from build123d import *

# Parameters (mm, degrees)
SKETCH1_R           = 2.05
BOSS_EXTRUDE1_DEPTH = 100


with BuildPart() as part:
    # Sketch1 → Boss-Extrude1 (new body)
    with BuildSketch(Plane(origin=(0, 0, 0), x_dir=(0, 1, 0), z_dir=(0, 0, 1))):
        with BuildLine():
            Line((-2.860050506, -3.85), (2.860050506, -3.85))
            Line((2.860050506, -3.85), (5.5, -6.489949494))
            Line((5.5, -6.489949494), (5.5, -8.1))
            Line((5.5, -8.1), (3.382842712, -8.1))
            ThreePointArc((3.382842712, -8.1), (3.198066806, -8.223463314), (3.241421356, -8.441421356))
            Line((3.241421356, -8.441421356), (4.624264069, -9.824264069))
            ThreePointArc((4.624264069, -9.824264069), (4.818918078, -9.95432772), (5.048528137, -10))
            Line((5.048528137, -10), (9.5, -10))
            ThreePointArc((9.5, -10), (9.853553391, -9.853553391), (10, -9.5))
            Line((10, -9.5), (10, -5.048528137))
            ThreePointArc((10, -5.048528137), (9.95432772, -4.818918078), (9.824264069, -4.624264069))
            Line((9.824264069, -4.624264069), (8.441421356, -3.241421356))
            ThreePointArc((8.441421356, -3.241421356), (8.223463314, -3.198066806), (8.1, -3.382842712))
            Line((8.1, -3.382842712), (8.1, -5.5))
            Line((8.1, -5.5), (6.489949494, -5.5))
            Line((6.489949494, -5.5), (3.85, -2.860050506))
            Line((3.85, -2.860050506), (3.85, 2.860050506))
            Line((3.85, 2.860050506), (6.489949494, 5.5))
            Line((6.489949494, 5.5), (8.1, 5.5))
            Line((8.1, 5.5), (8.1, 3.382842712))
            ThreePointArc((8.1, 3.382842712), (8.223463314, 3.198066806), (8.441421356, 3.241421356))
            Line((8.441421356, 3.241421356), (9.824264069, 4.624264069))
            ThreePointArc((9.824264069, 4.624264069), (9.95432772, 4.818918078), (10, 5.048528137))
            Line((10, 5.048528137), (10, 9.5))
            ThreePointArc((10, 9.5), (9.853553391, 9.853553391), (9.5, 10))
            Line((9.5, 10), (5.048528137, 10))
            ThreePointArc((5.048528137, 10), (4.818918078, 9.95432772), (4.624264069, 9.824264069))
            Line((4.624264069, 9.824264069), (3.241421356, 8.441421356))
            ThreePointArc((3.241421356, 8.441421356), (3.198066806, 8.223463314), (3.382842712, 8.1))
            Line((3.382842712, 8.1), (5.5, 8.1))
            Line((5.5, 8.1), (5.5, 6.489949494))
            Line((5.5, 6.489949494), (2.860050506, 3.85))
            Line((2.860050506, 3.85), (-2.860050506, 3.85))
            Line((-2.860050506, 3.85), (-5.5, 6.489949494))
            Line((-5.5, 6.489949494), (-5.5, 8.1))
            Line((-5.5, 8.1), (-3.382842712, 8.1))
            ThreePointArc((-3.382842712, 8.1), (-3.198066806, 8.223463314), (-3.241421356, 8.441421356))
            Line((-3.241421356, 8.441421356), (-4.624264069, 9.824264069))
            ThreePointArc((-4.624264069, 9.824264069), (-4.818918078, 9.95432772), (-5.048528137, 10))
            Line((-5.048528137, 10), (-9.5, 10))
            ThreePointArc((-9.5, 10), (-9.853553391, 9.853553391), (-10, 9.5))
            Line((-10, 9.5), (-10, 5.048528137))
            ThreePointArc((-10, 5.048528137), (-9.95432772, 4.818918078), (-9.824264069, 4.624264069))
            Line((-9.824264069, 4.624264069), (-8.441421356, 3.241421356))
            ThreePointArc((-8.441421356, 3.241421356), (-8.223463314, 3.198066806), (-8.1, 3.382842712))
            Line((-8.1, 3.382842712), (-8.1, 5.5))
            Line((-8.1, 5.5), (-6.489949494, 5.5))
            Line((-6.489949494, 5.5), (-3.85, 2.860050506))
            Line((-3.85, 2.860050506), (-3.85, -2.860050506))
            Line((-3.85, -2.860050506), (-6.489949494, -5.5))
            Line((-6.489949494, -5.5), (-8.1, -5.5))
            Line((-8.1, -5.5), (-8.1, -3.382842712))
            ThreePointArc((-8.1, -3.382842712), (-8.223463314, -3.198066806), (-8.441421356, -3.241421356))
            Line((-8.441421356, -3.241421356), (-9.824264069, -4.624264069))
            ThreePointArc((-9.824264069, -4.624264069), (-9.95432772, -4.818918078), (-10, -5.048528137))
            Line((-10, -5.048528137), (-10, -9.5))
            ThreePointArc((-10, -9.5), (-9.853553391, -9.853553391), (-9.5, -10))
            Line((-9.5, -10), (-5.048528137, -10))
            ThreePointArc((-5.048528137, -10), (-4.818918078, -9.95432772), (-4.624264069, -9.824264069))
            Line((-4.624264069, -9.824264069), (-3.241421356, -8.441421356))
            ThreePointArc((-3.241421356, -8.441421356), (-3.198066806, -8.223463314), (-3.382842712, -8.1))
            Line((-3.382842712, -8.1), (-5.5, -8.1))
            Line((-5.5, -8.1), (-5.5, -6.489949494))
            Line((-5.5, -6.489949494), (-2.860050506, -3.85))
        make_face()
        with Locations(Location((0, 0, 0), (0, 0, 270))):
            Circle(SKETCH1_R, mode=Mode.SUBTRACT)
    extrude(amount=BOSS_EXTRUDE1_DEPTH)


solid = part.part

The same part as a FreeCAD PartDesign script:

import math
import FreeCAD as App
import Part
import Sketcher

V = App.Vector

doc = App.newDocument("Part")
body = doc.addObject("PartDesign::Body", "Body")

sketch1 = body.newObject("Sketcher::SketchObject", "Sketch")
sketch1.AttachmentSupport = (doc.getObject("XY_Plane"), [""])
sketch1.MapMode = "FlatFace"
sketch1.addGeometry([
    Part.LineSegment(V(3.85, -2.86, 0), V(3.85, 2.86, 0)),
    Part.LineSegment(V(3.85, 2.86, 0), V(6.49, 5.5, 0)),
    Part.LineSegment(V(6.49, 5.5, 0), V(8.1, 5.5, 0)),
    Part.LineSegment(V(8.1, 5.5, 0), V(8.1, 3.38, 0)),
    Part.ArcOfCircle(Part.Circle(V(8.3, 3.38, 0), V(0, 0, 1), 0.2), math.radians(-180), math.radians(-45)),
    Part.LineSegment(V(8.44, 3.24, 0), V(9.82, 4.62, 0)),
    Part.ArcOfCircle(Part.Circle(V(9.4, 5.05, 0), V(0, 0, 1), 0.6), math.radians(-45), math.radians(0)),
    Part.LineSegment(V(10, 5.05, 0), V(10, 9.5, 0)),
    Part.ArcOfCircle(Part.Circle(V(9.5, 9.5, 0), V(0, 0, 1), 0.5), math.radians(0), math.radians(90)),
    Part.LineSegment(V(9.5, 10, 0), V(5.05, 10, 0)),
    Part.ArcOfCircle(Part.Circle(V(5.05, 9.4, 0), V(0, 0, 1), 0.6), math.radians(90), math.radians(135)),
    Part.LineSegment(V(4.62, 9.82, 0), V(3.24, 8.44, 0)),
    Part.ArcOfCircle(Part.Circle(V(3.38, 8.3, 0), V(0, 0, 1), 0.2), math.radians(135), math.radians(270)),
    Part.LineSegment(V(3.38, 8.1, 0), V(5.5, 8.1, 0)),
    Part.LineSegment(V(5.5, 8.1, 0), V(5.5, 6.49, 0)),
    Part.LineSegment(V(5.5, 6.49, 0), V(2.86, 3.85, 0)),
    Part.LineSegment(V(2.86, 3.85, 0), V(-2.86, 3.85, 0)),
    Part.LineSegment(V(-2.86, 3.85, 0), V(-5.5, 6.49, 0)),
    Part.LineSegment(V(-5.5, 6.49, 0), V(-5.5, 8.1, 0)),
    Part.LineSegment(V(-5.5, 8.1, 0), V(-3.38, 8.1, 0)),
    Part.ArcOfCircle(Part.Circle(V(-3.38, 8.3, 0), V(0, 0, 1), 0.2), math.radians(-90), math.radians(45)),
    Part.LineSegment(V(-3.24, 8.44, 0), V(-4.62, 9.82, 0)),
    Part.ArcOfCircle(Part.Circle(V(-5.05, 9.4, 0), V(0, 0, 1), 0.6), math.radians(45), math.radians(90)),
    Part.LineSegment(V(-5.05, 10, 0), V(-9.5, 10, 0)),
    Part.ArcOfCircle(Part.Circle(V(-9.5, 9.5, 0), V(0, 0, 1), 0.5), math.radians(90), math.radians(180)),
    Part.LineSegment(V(-10, 9.5, 0), V(-10, 5.05, 0)),
    Part.ArcOfCircle(Part.Circle(V(-9.4, 5.05, 0), V(0, 0, 1), 0.6), math.radians(180), math.radians(225)),
    Part.LineSegment(V(-9.82, 4.62, 0), V(-8.44, 3.24, 0)),
    Part.ArcOfCircle(Part.Circle(V(-8.3, 3.38, 0), V(0, 0, 1), 0.2), math.radians(-135), math.radians(0)),
    Part.LineSegment(V(-8.1, 3.38, 0), V(-8.1, 5.5, 0)),
    Part.LineSegment(V(-8.1, 5.5, 0), V(-6.49, 5.5, 0)),
    Part.LineSegment(V(-6.49, 5.5, 0), V(-3.85, 2.86, 0)),
    Part.LineSegment(V(-3.85, 2.86, 0), V(-3.85, -2.86, 0)),
    Part.LineSegment(V(-3.85, -2.86, 0), V(-6.49, -5.5, 0)),
    Part.LineSegment(V(-6.49, -5.5, 0), V(-8.1, -5.5, 0)),
    Part.LineSegment(V(-8.1, -5.5, 0), V(-8.1, -3.38, 0)),
    Part.ArcOfCircle(Part.Circle(V(-8.3, -3.38, 0), V(0, 0, 1), 0.2), math.radians(0), math.radians(135)),
    Part.LineSegment(V(-8.44, -3.24, 0), V(-9.82, -4.62, 0)),
    Part.ArcOfCircle(Part.Circle(V(-9.4, -5.05, 0), V(0, 0, 1), 0.6), math.radians(135), math.radians(180)),
    Part.LineSegment(V(-10, -5.05, 0), V(-10, -9.5, 0)),
    Part.ArcOfCircle(Part.Circle(V(-9.5, -9.5, 0), V(0, 0, 1), 0.5), math.radians(180), math.radians(270)),
    Part.LineSegment(V(-9.5, -10, 0), V(-5.05, -10, 0)),
    Part.ArcOfCircle(Part.Circle(V(-5.05, -9.4, 0), V(0, 0, 1), 0.6), math.radians(-90), math.radians(-45)),
    Part.LineSegment(V(-4.62, -9.82, 0), V(-3.24, -8.44, 0)),
    Part.ArcOfCircle(Part.Circle(V(-3.38, -8.3, 0), V(0, 0, 1), 0.2), math.radians(-45), math.radians(90)),
    Part.LineSegment(V(-3.38, -8.1, 0), V(-5.5, -8.1, 0)),
    Part.LineSegment(V(-5.5, -8.1, 0), V(-5.5, -6.49, 0)),
    Part.LineSegment(V(-5.5, -6.49, 0), V(-2.86, -3.85, 0)),
    Part.LineSegment(V(-2.86, -3.85, 0), V(2.86, -3.85, 0)),
    Part.LineSegment(V(2.86, -3.85, 0), V(5.5, -6.49, 0)),
    Part.LineSegment(V(5.5, -6.49, 0), V(5.5, -8.1, 0)),
    Part.LineSegment(V(5.5, -8.1, 0), V(3.38, -8.1, 0)),
    Part.ArcOfCircle(Part.Circle(V(3.38, -8.3, 0), V(0, 0, 1), 0.2), math.radians(90), math.radians(225)),
    Part.LineSegment(V(3.24, -8.44, 0), V(4.62, -9.82, 0)),
    Part.ArcOfCircle(Part.Circle(V(5.05, -9.4, 0), V(0, 0, 1), 0.6), math.radians(-135), math.radians(-90)),
    Part.LineSegment(V(5.05, -10, 0), V(9.5, -10, 0)),
    Part.ArcOfCircle(Part.Circle(V(9.5, -9.5, 0), V(0, 0, 1), 0.5), math.radians(-90), math.radians(0)),
    Part.LineSegment(V(10, -9.5, 0), V(10, -5.05, 0)),
    Part.ArcOfCircle(Part.Circle(V(9.4, -5.05, 0), V(0, 0, 1), 0.6), math.radians(0), math.radians(45)),
    Part.LineSegment(V(9.82, -4.62, 0), V(8.44, -3.24, 0)),
    Part.ArcOfCircle(Part.Circle(V(8.3, -3.38, 0), V(0, 0, 1), 0.2), math.radians(45), math.radians(180)),
    Part.LineSegment(V(8.1, -3.38, 0), V(8.1, -5.5, 0)),
    Part.LineSegment(V(8.1, -5.5, 0), V(6.49, -5.5, 0)),
    Part.LineSegment(V(6.49, -5.5, 0), V(3.85, -2.86, 0)),
    Part.Circle(V(0, 0, 0), V(0, 0, 1), 2.05),
], False)
sketch1.addConstraint([
    Sketcher.Constraint("Coincident", 0, 2, 1, 1),
    Sketcher.Constraint("Coincident", 1, 2, 2, 1),
    Sketcher.Constraint("Coincident", 2, 2, 3, 1),
    Sketcher.Constraint("Tangent", 3, 2, 4, 1),
    Sketcher.Constraint("Tangent", 4, 2, 5, 1),
    Sketcher.Constraint("Tangent", 5, 2, 6, 1),
    Sketcher.Constraint("Tangent", 6, 2, 7, 1),
    Sketcher.Constraint("Tangent", 7, 2, 8, 1),
    Sketcher.Constraint("Tangent", 8, 2, 9, 1),
    Sketcher.Constraint("Tangent", 9, 2, 10, 1),
    Sketcher.Constraint("Tangent", 10, 2, 11, 1),
    Sketcher.Constraint("Tangent", 11, 2, 12, 1),
    Sketcher.Constraint("Tangent", 12, 2, 13, 1),
    Sketcher.Constraint("Coincident", 13, 2, 14, 1),
    Sketcher.Constraint("Coincident", 14, 2, 15, 1),
    Sketcher.Constraint("Coincident", 15, 2, 16, 1),
    Sketcher.Constraint("Coincident", 16, 2, 17, 1),
    Sketcher.Constraint("Coincident", 17, 2, 18, 1),
    Sketcher.Constraint("Coincident", 18, 2, 19, 1),
    Sketcher.Constraint("Tangent", 19, 2, 20, 1),
    Sketcher.Constraint("Tangent", 20, 2, 21, 1),
    Sketcher.Constraint("Tangent", 21, 2, 22, 1),
    Sketcher.Constraint("Tangent", 22, 2, 23, 1),
    Sketcher.Constraint("Tangent", 23, 2, 24, 1),
    Sketcher.Constraint("Tangent", 24, 2, 25, 1),
    Sketcher.Constraint("Tangent", 25, 2, 26, 1),
    Sketcher.Constraint("Tangent", 26, 2, 27, 1),
    Sketcher.Constraint("Tangent", 27, 2, 28, 1),
    Sketcher.Constraint("Tangent", 28, 2, 29, 1),
    Sketcher.Constraint("Coincident", 29, 2, 30, 1),
    Sketcher.Constraint("Coincident", 30, 2, 31, 1),
    Sketcher.Constraint("Coincident", 31, 2, 32, 1),
    Sketcher.Constraint("Coincident", 32, 2, 33, 1),
    Sketcher.Constraint("Coincident", 33, 2, 34, 1),
    Sketcher.Constraint("Coincident", 34, 2, 35, 1),
    Sketcher.Constraint("Tangent", 35, 2, 36, 1),
    Sketcher.Constraint("Tangent", 36, 2, 37, 1),
    Sketcher.Constraint("Tangent", 37, 2, 38, 1),
    Sketcher.Constraint("Tangent", 38, 2, 39, 1),
    Sketcher.Constraint("Tangent", 39, 2, 40, 1),
    Sketcher.Constraint("Tangent", 40, 2, 41, 1),
    Sketcher.Constraint("Tangent", 41, 2, 42, 1),
    Sketcher.Constraint("Tangent", 42, 2, 43, 1),
    Sketcher.Constraint("Tangent", 43, 2, 44, 1),
    Sketcher.Constraint("Tangent", 44, 2, 45, 1),
    Sketcher.Constraint("Coincident", 45, 2, 46, 1),
    Sketcher.Constraint("Coincident", 46, 2, 47, 1),
    Sketcher.Constraint("Coincident", 47, 2, 48, 1),
    Sketcher.Constraint("Coincident", 48, 2, 49, 1),
    Sketcher.Constraint("Coincident", 49, 2, 50, 1),
    Sketcher.Constraint("Coincident", 50, 2, 51, 1),
    Sketcher.Constraint("Tangent", 51, 2, 52, 1),
    Sketcher.Constraint("Tangent", 52, 2, 53, 1),
    Sketcher.Constraint("Tangent", 53, 2, 54, 1),
    Sketcher.Constraint("Tangent", 54, 2, 55, 1),
    Sketcher.Constraint("Tangent", 55, 2, 56, 1),
    Sketcher.Constraint("Tangent", 56, 2, 57, 1),
    Sketcher.Constraint("Tangent", 57, 2, 58, 1),
    Sketcher.Constraint("Tangent", 58, 2, 59, 1),
    Sketcher.Constraint("Tangent", 59, 2, 60, 1),
    Sketcher.Constraint("Tangent", 60, 2, 61, 1),
    Sketcher.Constraint("Coincident", 61, 2, 62, 1),
    Sketcher.Constraint("Coincident", 62, 2, 63, 1),
    Sketcher.Constraint("Coincident", 63, 2, 0, 1),
    Sketcher.Constraint("Vertical", 0),
    Sketcher.Constraint("Horizontal", 2),
    Sketcher.Constraint("Vertical", 3),
    Sketcher.Constraint("Vertical", 7),
    Sketcher.Constraint("Horizontal", 9),
    Sketcher.Constraint("Horizontal", 13),
    Sketcher.Constraint("Vertical", 14),
    Sketcher.Constraint("Horizontal", 16),
    Sketcher.Constraint("Vertical", 18),
    Sketcher.Constraint("Horizontal", 19),
    Sketcher.Constraint("Horizontal", 23),
    Sketcher.Constraint("Vertical", 25),
    Sketcher.Constraint("Vertical", 29),
    Sketcher.Constraint("Horizontal", 30),
    Sketcher.Constraint("Vertical", 32),
    Sketcher.Constraint("Horizontal", 34),
    Sketcher.Constraint("Vertical", 35),
    Sketcher.Constraint("Vertical", 39),
    Sketcher.Constraint("Horizontal", 41),
    Sketcher.Constraint("Horizontal", 45),
    Sketcher.Constraint("Vertical", 46),
    Sketcher.Constraint("Horizontal", 48),
    Sketcher.Constraint("Vertical", 50),
    Sketcher.Constraint("Horizontal", 51),
    Sketcher.Constraint("Horizontal", 55),
    Sketcher.Constraint("Vertical", 57),
    Sketcher.Constraint("Vertical", 61),
    Sketcher.Constraint("Horizontal", 62),
    Sketcher.Constraint("Coincident", 64, 3, -1, 1),
    Sketcher.Constraint("Equal", 6, 10),
    Sketcher.Constraint("Equal", 4, 12),
    Sketcher.Constraint("Equal", 12, 20),
    Sketcher.Constraint("Equal", 10, 22),
    Sketcher.Constraint("Equal", 8, 24),
    Sketcher.Constraint("Equal", 22, 26),
    Sketcher.Constraint("Equal", 20, 28),
    Sketcher.Constraint("Equal", 28, 36),
    Sketcher.Constraint("Equal", 26, 38),
    Sketcher.Constraint("Equal", 24, 40),
    Sketcher.Constraint("Equal", 38, 42),
    Sketcher.Constraint("Equal", 36, 44),
    Sketcher.Constraint("Equal", 44, 52),
    Sketcher.Constraint("Equal", 42, 54),
    Sketcher.Constraint("Equal", 40, 56),
    Sketcher.Constraint("Equal", 54, 58),
    Sketcher.Constraint("Equal", 52, 60),
    Sketcher.Constraint("Symmetric", 4, 3, 36, 3, -1, 1),
    Sketcher.Constraint("Symmetric", 6, 3, 38, 3, -1, 1),
    Sketcher.Constraint("Symmetric", 10, 3, 42, 3, -1, 1),
    Sketcher.Constraint("Symmetric", 12, 3, 44, 3, -1, 1),
    Sketcher.Constraint("Symmetric", 20, 3, 52, 3, -1, 1),
    Sketcher.Constraint("Symmetric", 22, 3, 54, 3, -1, 1),
    Sketcher.Constraint("Symmetric", 26, 3, 58, 3, -1, 1),
    Sketcher.Constraint("Symmetric", 28, 3, 60, 3, -1, 1),
    Sketcher.Constraint("Symmetric", 0, 2, 32, 2, -1, 1),
    Sketcher.Constraint("Symmetric", 1, 2, 33, 2, -1, 1),
    Sketcher.Constraint("Symmetric", 14, 2, 46, 2, -1, 1),
    Sketcher.Constraint("Symmetric", 15, 2, 47, 2, -1, 1),
    Sketcher.Constraint("Symmetric", 17, 2, 49, 2, -1, 1),
    Sketcher.Constraint("Symmetric", 30, 2, 62, 2, -1, 1),
    Sketcher.Constraint("Symmetric", 12, 3, 20, 3, -2),
    Sketcher.Constraint("Symmetric", 10, 3, 22, 3, -2),
    Sketcher.Constraint("Symmetric", 6, 3, 26, 3, -2),
    Sketcher.Constraint("Symmetric", 4, 3, 28, 3, -2),
    Sketcher.Constraint("Symmetric", 14, 2, 17, 2, -2),
    Sketcher.Constraint("Symmetric", 1, 2, 30, 2, -2),
    Sketcher.Constraint("Parallel", 1, 5),
    Sketcher.Constraint("Parallel", 5, 11),
    Sketcher.Constraint("Parallel", 11, 15),
    Sketcher.Constraint("Perpendicular", 15, 17),
    Sketcher.Constraint("Parallel", 17, 21),
    Sketcher.Constraint("Parallel", 27, 31),
    Sketcher.Constraint("Perpendicular", 47, 49),
    Sketcher.Constraint("Parallel", 59, 63),
    Sketcher.Constraint("Equal", 48, 0),
    Sketcher.Constraint("Equal", 51, 3),
    Sketcher.Constraint("Equal", 55, 7),
    Sketcher.Constraint("Equal", 62, 14),
    Sketcher.Constraint("Equal", 5, 11),
    Sketcher.Constraint("Equal", 1, 15),
    Sketcher.Constraint("Diameter", 64, 4.1),
    Sketcher.Constraint("Radius", 4, 0.2),
    Sketcher.Constraint("Radius", 6, 0.6),
    Sketcher.Constraint("Radius", 8, 0.5),
    Sketcher.Constraint("DistanceX", -1, 1, 6, 2, 10.0),
    Sketcher.Constraint("DistanceX", -1, 1, 4, 3, 8.3),
    Sketcher.Constraint("DistanceY", -1, 1, 1, 2, 5.5),
    Sketcher.Constraint("DistanceX", -1, 1, 0, 2, 3.85),
    Sketcher.Constraint("DistanceX", 16, 2, 16, 1, 5.720101),
    Sketcher.Constraint("DistanceX", 9, 2, 9, 1, 4.451472),
])
pad1 = body.newObject("PartDesign::Pad", "Pad")
pad1.Profile = sketch1
pad1.Length = 100

doc.recompute()
